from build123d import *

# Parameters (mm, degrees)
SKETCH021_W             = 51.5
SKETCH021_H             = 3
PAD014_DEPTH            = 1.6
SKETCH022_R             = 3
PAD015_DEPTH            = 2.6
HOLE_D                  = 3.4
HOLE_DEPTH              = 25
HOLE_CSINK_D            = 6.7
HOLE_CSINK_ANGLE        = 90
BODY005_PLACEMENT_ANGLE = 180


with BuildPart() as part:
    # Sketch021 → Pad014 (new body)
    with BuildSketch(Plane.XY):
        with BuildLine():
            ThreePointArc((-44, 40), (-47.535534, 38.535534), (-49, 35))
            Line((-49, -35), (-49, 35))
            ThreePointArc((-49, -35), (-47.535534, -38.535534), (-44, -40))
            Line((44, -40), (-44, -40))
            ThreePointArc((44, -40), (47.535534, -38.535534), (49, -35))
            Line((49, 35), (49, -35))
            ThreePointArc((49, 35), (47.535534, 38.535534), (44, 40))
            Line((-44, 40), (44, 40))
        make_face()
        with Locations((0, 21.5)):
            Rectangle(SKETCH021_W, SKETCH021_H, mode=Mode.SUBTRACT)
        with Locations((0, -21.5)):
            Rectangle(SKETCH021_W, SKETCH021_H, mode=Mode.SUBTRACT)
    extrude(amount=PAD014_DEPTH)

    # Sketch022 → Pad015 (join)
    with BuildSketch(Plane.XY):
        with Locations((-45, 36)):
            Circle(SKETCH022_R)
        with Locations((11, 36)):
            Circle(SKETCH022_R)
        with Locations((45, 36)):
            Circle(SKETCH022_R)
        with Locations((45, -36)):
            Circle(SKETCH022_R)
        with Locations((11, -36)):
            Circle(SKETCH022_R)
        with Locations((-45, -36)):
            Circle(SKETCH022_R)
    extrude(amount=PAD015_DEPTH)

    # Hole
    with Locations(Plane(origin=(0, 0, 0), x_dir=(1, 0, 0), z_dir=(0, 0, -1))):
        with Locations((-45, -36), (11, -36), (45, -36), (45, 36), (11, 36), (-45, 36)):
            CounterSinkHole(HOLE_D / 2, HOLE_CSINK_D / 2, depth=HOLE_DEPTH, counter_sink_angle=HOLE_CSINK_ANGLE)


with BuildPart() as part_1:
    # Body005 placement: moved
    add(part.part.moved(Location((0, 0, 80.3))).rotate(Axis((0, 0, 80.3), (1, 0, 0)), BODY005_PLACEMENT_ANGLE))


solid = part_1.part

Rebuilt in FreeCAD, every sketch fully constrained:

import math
import FreeCAD as App
import Part
import Sketcher


def add_polygon(sketch, points):
    """Adds a closed chain of lines whose ends are joined by coincident constraints."""
    first, n = sketch.GeometryCount, len(points)
    for a, b in zip(points, points[1:] + points[:1]):
        sketch.addGeometry(Part.LineSegment(App.Vector(*a, 0), App.Vector(*b, 0)), False)
    for i in range(n):
        sketch.addConstraint(Sketcher.Constraint("Coincident", first + i, 2, first + (i + 1) % n, 1))

doc = App.newDocument("Part")
body = doc.addObject("PartDesign::Body", "Body")

# Sketch on XY plane
sketch1 = body.newObject("Sketcher::SketchObject", "Sketch")
sketch1.AttachmentSupport = (doc.getObject("XY_Plane"), [""])
sketch1.MapMode = "FlatFace"
sketch1.addGeometry(Part.ArcOfCircle(Part.Circle(App.Vector(-44, 35, 0), App.Vector(0, 0, 1), 5), math.radians(89.999996), math.radians(180.000004)), False)  # 0
sketch1.addGeometry(Part.LineSegment(App.Vector(-49, 35, 0), App.Vector(-49, -35, 0)), False)  # 1
sketch1.addGeometry(Part.ArcOfCircle(Part.Circle(App.Vector(-44, -35, 0), App.Vector(0, 0, 1), 5), math.radians(179.999996), math.radians(270.000004)), False)  # 2
sketch1.addGeometry(Part.LineSegment(App.Vector(-44, -40, 0), App.Vector(44, -40, 0)), False)  # 3
sketch1.addGeometry(Part.ArcOfCircle(Part.Circle(App.Vector(44, -35, 0), App.Vector(0, 0, 1), 5), math.radians(-90.000004), math.radians(0.000004)), False)  # 4
sketch1.addGeometry(Part.LineSegment(App.Vector(49, -35, 0), App.Vector(49, 35, 0)), False)  # 5
sketch1.addGeometry(Part.ArcOfCircle(Part.Circle(App.Vector(44, 35, 0), App.Vector(0, 0, 1), 5), math.radians(-0.000004), math.radians(90.000004)), False)  # 6
sketch1.addGeometry(Part.LineSegment(App.Vector(44, 40, 0), App.Vector(-44, 40, 0)), False)  # 7
add_polygon(sketch1, [(25.75, -23), (-25.75, -23), (-25.75, -20), (25.75, -20)])  # lines 8-11
add_polygon(sketch1, [(25.75, 20), (-25.75, 20), (-25.75, 23), (25.75, 23)])  # lines 12-15
sketch1.addConstraint(Sketcher.Constraint("Tangent", 0, 2, 1, 1))
sketch1.addConstraint(Sketcher.Constraint("Tangent", 1, 2, 2, 1))
sketch1.addConstraint(Sketcher.Constraint("Tangent", 2, 2, 3, 1))
sketch1.addConstraint(Sketcher.Constraint("Tangent", 3, 2, 4, 1))
sketch1.addConstraint(Sketcher.Constraint("Tangent", 4, 2, 5, 1))
sketch1.addConstraint(Sketcher.Constraint("Tangent", 5, 2, 6, 1))
sketch1.addConstraint(Sketcher.Constraint("Tangent", 6, 2, 7, 1))
sketch1.addConstraint(Sketcher.Constraint("Tangent", 7, 2, 0, 1))
sketch1.addConstraint(Sketcher.Constraint("Vertical", 1))
sketch1.addConstraint(Sketcher.Constraint("Horizontal", 3))
sketch1.addConstraint(Sketcher.Constraint("Vertical", 5))
sketch1.addConstraint(Sketcher.Constraint("Horizontal", 7))
sketch1.addConstraint(Sketcher.Constraint("Horizontal", 8))
sketch1.addConstraint(Sketcher.Constraint("Vertical", 9))
sketch1.addConstraint(Sketcher.Constraint("Horizontal", 10))
sketch1.addConstraint(Sketcher.Constraint("Vertical", 11))
sketch1.addConstraint(Sketcher.Constraint("Horizontal", 12))
sketch1.addConstraint(Sketcher.Constraint("Vertical", 13))
sketch1.addConstraint(Sketcher.Constraint("Horizontal", 14))
sketch1.addConstraint(Sketcher.Constraint("Vertical", 15))
sketch1.addConstraint(Sketcher.Constraint("Equal", 0, 2))
sketch1.addConstraint(Sketcher.Constraint("Equal", 2, 4))
sketch1.addConstraint(Sketcher.Constraint("Equal", 4, 6))
sketch1.addConstraint(Sketcher.Constraint("Symmetric", 0, 3, 4, 3, -1, 1))
sketch1.addConstraint(Sketcher.Constraint("Symmetric", 10, 2, 12, 2, -1, 1))
sketch1.addConstraint(Sketcher.Constraint("Symmetric", 8, 2, 14, 2, -1, 1))
sketch1.addConstraint(Sketcher.Constraint("Vertical", 9, 2, 12, 2))
sketch1.addConstraint(Sketcher.Constraint("Radius", 0, 5.0))
sketch1.addConstraint(Sketcher.Constraint("DistanceX", 3, 1, 3, 2, 88.0))
sketch1.addConstraint(Sketcher.Constraint("DistanceY", 1, 2, 1, 1, 70.0))
sketch1.addConstraint(Sketcher.Constraint("DistanceY", 9, 1, 9, 2, 3.0))
sketch1.addConstraint(Sketcher.Constraint("DistanceX", 8, 2, 8, 1, 51.5))
sketch1.addConstraint(Sketcher.Constraint("DistanceY", 8, 2, -1, 1, 23.0))
pad1 = body.newObject("PartDesign::Pad", "Pad")
pad1.Profile = sketch1
pad1.Length = 1.6

# Sketch on XY plane
sketch2 = body.newObject("Sketcher::SketchObject", "Sketch001")
sketch2.AttachmentSupport = (doc.getObject("XY_Plane"), [""])
sketch2.MapMode = "FlatFace"
sketch2.addGeometry(Part.Circle(App.Vector(-45, 36, 0), App.Vector(0, 0, 1), 3), False)
sketch2.addGeometry(Part.Circle(App.Vector(11, 36, 0), App.Vector(0, 0, 1), 3), False)
sketch2.addGeometry(Part.Circle(App.Vector(45, 36, 0), App.Vector(0, 0, 1), 3), False)
sketch2.addGeometry(Part.Circle(App.Vector(45, -36, 0), App.Vector(0, 0, 1), 3), False)
sketch2.addGeometry(Part.Circle(App.Vector(11, -36, 0), App.Vector(0, 0, 1), 3), False)
sketch2.addGeometry(Part.Circle(App.Vector(-45, -36, 0), App.Vector(0, 0, 1), 3), False)
sketch2.addConstraint(Sketcher.Constraint("Equal", 0, 1))
sketch2.addConstraint(Sketcher.Constraint("Equal", 1, 2))
sketch2.addConstraint(Sketcher.Constraint("Equal", 2, 3))
sketch2.addConstraint(Sketcher.Constraint("Equal", 3, 4))
sketch2.addConstraint(Sketcher.Constraint("Equal", 4, 5))
sketch2.addConstraint(Sketcher.Constraint("Symmetric", 0, 3, 3, 3, -1, 1))
sketch2.addConstraint(Sketcher.Constraint("Symmetric", 2, 3, 5, 3, -1, 1))
sketch2.addConstraint(Sketcher.Constraint("Symmetric", 0, 3, 2, 3, -2))
sketch2.addConstraint(Sketcher.Constraint("Symmetric", 1, 3, 4, 3, -1))
sketch2.addConstraint(Sketcher.Constraint("Horizontal", 0, 3, 1, 3))
sketch2.addConstraint(Sketcher.Constraint("Diameter", 0, 6.0))
sketch2.addConstraint(Sketcher.Constraint("DistanceX", 0, 3, -1, 1, 45.0))
sketch2.addConstraint(Sketcher.Constraint("DistanceY", -1, 1, 0, 3, 36.0))
sketch2.addConstraint(Sketcher.Constraint("DistanceX", -1, 1, 1, 3, 11.0))
pad2 = body.newObject("PartDesign::Pad", "Pad001")
pad2.Profile = sketch2
pad2.Length = 2.6

# Sketch on XY plane
sketch3 = body.newObject("Sketcher::SketchObject", "Sketch002")
sketch3.AttachmentSupport = (doc.getObject("XY_Plane"), [""])
sketch3.MapMode = "FlatFace"
sketch3.addGeometry(Part.Circle(App.Vector(-45, 36, 0), App.Vector(0, 0, 1), 1.7), False)
sketch3.addGeometry(Part.Circle(App.Vector(11, 36, 0), App.Vector(0, 0, 1), 1.7), False)
sketch3.addGeometry(Part.Circle(App.Vector(45, 36, 0), App.Vector(0, 0, 1), 1.7), False)
sketch3.addGeometry(Part.Circle(App.Vector(45, -36, 0), App.Vector(0, 0, 1), 1.7), False)
sketch3.addGeometry(Part.Circle(App.Vector(11, -36, 0), App.Vector(0, 0, 1), 1.7), False)
sketch3.addGeometry(Part.Circle(App.Vector(-45, -36, 0), App.Vector(0, 0, 1), 1.7), False)
sketch3.addConstraint(Sketcher.Constraint("Equal", 0, 1))
sketch3.addConstraint(Sketcher.Constraint("Equal", 1, 2))
sketch3.addConstraint(Sketcher.Constraint("Equal", 2, 3))
sketch3.addConstraint(Sketcher.Constraint("Equal", 3, 4))
sketch3.addConstraint(Sketcher.Constraint("Equal", 4, 5))
sketch3.addConstraint(Sketcher.Constraint("Symmetric", 0, 3, 3, 3, -1, 1))
sketch3.addConstraint(Sketcher.Constraint("Symmetric", 2, 3, 5, 3, -1, 1))
sketch3.addConstraint(Sketcher.Constraint("Symmetric", 0, 3, 2, 3, -2))
sketch3.addConstraint(Sketcher.Constraint("Symmetric", 1, 3, 4, 3, -1))
sketch3.addConstraint(Sketcher.Constraint("Horizontal", 0, 3, 1, 3))
sketch3.addConstraint(Sketcher.Constraint("Diameter", 0, 3.4))
sketch3.addConstraint(Sketcher.Constraint("DistanceX", 0, 3, -1, 1, 45.0))
sketch3.addConstraint(Sketcher.Constraint("DistanceY", -1, 1, 0, 3, 36.0))
sketch3.addConstraint(Sketcher.Constraint("DistanceX", -1, 1, 1, 3, 11.0))
doc.recompute()
hole = body.newObject("PartDesign::Hole", "Hole")
hole.Profile = sketch3
hole.ThreadType = "None"
hole.Diameter = 3.4
hole.DepthType = "Dimension"
hole.Depth = 25
hole.DrillPoint = "Flat"
hole.HoleCutType = "Countersink"
hole.HoleCutDiameter = 6.7
hole.HoleCutCountersinkAngle = 90
hole.Reversed = True
body2 = doc.addObject("PartDesign::Body", "Body001")
doc.recompute()

body.Placement = App.Placement(App.Vector(0, 0, 80.3), App.Rotation(App.Vector(1, 0, 0), 180))
boolean = body2.newObject("PartDesign::Boolean", "Boolean")
boolean.Type = "Fuse"
boolean.addObjects([body])

doc.recompute()
